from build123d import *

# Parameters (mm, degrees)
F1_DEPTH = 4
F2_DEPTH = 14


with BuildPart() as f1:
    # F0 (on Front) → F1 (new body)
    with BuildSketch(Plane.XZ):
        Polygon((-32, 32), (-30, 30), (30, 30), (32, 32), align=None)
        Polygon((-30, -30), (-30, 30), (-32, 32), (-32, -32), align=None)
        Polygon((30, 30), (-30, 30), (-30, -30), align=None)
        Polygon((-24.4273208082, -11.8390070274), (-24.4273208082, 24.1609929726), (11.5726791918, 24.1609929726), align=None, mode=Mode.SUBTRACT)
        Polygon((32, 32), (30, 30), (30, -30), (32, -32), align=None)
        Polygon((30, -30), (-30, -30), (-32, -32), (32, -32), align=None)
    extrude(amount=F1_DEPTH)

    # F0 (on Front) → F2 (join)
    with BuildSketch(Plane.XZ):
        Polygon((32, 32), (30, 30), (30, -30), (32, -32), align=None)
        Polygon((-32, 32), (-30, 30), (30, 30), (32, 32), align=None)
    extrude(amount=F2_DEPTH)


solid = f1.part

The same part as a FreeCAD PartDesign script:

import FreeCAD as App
import Part
import Sketcher

V = App.Vector

doc = App.newDocument("Part")
body = doc.addObject("PartDesign::Body", "Body")

sketch1 = doc.addObject("Sketcher::SketchObject", "Sketch")
body.addObject(sketch1)
sketch1.AttachmentSupport = (doc.XZ_Plane, [""])
sketch1.MapMode = "FlatFace"
sketch1.addGeometry([
    Part.LineSegment(V(32, 32, 0), V(-32, 32, 0)),
    Part.LineSegment(V(-32, 32, 0), V(-32, -32, 0)),
    Part.LineSegment(V(-32, -32, 0), V(32, -32, 0)),
    Part.LineSegment(V(32, -32, 0), V(32, 32, 0)),
    Part.LineSegment(V(-30, -30, 0), V(30, 30, 0)),
    Part.LineSegment(V(30, 30, 0), V(30, -30, 0)),
    Part.LineSegment(V(30, -30, 0), V(-30, -30, 0)),
    Part.LineSegment(V(12, 24, 0), V(-24, -12, 0)),
    Part.LineSegment(V(-24, -12, 0), V(-24, 24, 0)),
    Part.LineSegment(V(-24, 24, 0), V(12, 24, 0)),
], False)
sketch1.addConstraint([
    Sketcher.Constraint("Coincident", 0, 2, 1, 1),
    Sketcher.Constraint("Coincident", 1, 2, 2, 1),
    Sketcher.Constraint("Coincident", 2, 2, 3, 1),
    Sketcher.Constraint("Coincident", 3, 2, 0, 1),
    Sketcher.Constraint("Coincident", 4, 2, 5, 1),
    Sketcher.Constraint("Coincident", 5, 2, 6, 1),
    Sketcher.Constraint("Coincident", 6, 2, 4, 1),
    Sketcher.Constraint("Coincident", 7, 2, 8, 1),
    Sketcher.Constraint("Coincident", 8, 2, 9, 1),
    Sketcher.Constraint("Coincident", 9, 2, 7, 1),
    Sketcher.Constraint("Horizontal", 0),
    Sketcher.Constraint("Vertical", 1),
    Sketcher.Constraint("Horizontal", 2),
    Sketcher.Constraint("Vertical", 3),
    Sketcher.Constraint("Vertical", 5),
    Sketcher.Constraint("Horizontal", 6),
    Sketcher.Constraint("Vertical", 8),
    Sketcher.Constraint("Horizontal", 9),
    Sketcher.Constraint("Symmetric", 0, 2, 2, 2, -1, 1),
    Sketcher.Constraint("Symmetric", 4, 2, 6, 2, -1, 1),
    Sketcher.Constraint("Parallel", 4, 7),
    Sketcher.Constraint("Equal", 2, 1),
    Sketcher.Constraint("Equal", 6, 5),
    Sketcher.Constraint("DistanceX", 0, 2, 0, 1, 64.0),
    Sketcher.Constraint("DistanceX", 6, 2, 6, 1, 60.0),
    Sketcher.Constraint("DistanceX", 9, 1, 9, 2, 36.0),
    Sketcher.Constraint("DistanceX", 7, 2, -1, 1, 24.427321),
    Sketcher.Constraint("DistanceY", 7, 2, -1, 1, 11.839007),
])
pad1 = doc.addObject("PartDesign::Pad", "Pad")
body.addObject(pad1)
pad1.Profile = sketch1
pad1.Length = 4

sketch2 = doc.addObject("Sketcher::SketchObject", "Sketch001")
body.addObject(sketch2)
sketch2.AttachmentSupport = (doc.XZ_Plane, [""])
sketch2.MapMode = "FlatFace"
sketch2.addGeometry([
    Part.LineSegment(V(30, 30, 0), V(30, -30, 0)),
    Part.LineSegment(V(30, -30, 0), V(32, -32, 0)),
    Part.LineSegment(V(32, -32, 0), V(32, 32, 0)),
    Part.LineSegment(V(32, 32, 0), V(-32, 32, 0)),
    Part.LineSegment(V(-32, 32, 0), V(-30, 30, 0)),
    Part.LineSegment(V(-30, 30, 0), V(30, 30, 0)),
], False)
sketch2.addConstraint([
    Sketcher.Constraint("Coincident", 0, 2, 1, 1),
    Sketcher.Constraint("Coincident", 1, 2, 2, 1),
    Sketcher.Constraint("Coincident", 2, 2, 3, 1),
    Sketcher.Constraint("Coincident", 3, 2, 4, 1),
    Sketcher.Constraint("Coincident", 4, 2, 5, 1),
    Sketcher.Constraint("Coincident", 5, 2, 0, 1),
    Sketcher.Constraint("Vertical", 0),
    Sketcher.Constraint("Vertical", 2),
    Sketcher.Constraint("Horizontal", 3),
    Sketcher.Constraint("Horizontal", 5),
    Sketcher.Constraint("Symmetric", 1, 2, 3, 2, -1, 1),
    Sketcher.Constraint("Symmetric", 0, 2, 4, 2, -1, 1),
    Sketcher.Constraint("Equal", 5, 0),
    Sketcher.Constraint("Equal", 3, 2),
    Sketcher.Constraint("DistanceX", 3, 2, 3, 1, 64.0),
    Sketcher.Constraint("DistanceX", 5, 1, 5, 2, 60.0),
])
pad2 = doc.addObject("PartDesign::Pad", "Pad001")
body.addObject(pad2)
pad2.Profile = sketch2
pad2.Length = 14

doc.recompute()
